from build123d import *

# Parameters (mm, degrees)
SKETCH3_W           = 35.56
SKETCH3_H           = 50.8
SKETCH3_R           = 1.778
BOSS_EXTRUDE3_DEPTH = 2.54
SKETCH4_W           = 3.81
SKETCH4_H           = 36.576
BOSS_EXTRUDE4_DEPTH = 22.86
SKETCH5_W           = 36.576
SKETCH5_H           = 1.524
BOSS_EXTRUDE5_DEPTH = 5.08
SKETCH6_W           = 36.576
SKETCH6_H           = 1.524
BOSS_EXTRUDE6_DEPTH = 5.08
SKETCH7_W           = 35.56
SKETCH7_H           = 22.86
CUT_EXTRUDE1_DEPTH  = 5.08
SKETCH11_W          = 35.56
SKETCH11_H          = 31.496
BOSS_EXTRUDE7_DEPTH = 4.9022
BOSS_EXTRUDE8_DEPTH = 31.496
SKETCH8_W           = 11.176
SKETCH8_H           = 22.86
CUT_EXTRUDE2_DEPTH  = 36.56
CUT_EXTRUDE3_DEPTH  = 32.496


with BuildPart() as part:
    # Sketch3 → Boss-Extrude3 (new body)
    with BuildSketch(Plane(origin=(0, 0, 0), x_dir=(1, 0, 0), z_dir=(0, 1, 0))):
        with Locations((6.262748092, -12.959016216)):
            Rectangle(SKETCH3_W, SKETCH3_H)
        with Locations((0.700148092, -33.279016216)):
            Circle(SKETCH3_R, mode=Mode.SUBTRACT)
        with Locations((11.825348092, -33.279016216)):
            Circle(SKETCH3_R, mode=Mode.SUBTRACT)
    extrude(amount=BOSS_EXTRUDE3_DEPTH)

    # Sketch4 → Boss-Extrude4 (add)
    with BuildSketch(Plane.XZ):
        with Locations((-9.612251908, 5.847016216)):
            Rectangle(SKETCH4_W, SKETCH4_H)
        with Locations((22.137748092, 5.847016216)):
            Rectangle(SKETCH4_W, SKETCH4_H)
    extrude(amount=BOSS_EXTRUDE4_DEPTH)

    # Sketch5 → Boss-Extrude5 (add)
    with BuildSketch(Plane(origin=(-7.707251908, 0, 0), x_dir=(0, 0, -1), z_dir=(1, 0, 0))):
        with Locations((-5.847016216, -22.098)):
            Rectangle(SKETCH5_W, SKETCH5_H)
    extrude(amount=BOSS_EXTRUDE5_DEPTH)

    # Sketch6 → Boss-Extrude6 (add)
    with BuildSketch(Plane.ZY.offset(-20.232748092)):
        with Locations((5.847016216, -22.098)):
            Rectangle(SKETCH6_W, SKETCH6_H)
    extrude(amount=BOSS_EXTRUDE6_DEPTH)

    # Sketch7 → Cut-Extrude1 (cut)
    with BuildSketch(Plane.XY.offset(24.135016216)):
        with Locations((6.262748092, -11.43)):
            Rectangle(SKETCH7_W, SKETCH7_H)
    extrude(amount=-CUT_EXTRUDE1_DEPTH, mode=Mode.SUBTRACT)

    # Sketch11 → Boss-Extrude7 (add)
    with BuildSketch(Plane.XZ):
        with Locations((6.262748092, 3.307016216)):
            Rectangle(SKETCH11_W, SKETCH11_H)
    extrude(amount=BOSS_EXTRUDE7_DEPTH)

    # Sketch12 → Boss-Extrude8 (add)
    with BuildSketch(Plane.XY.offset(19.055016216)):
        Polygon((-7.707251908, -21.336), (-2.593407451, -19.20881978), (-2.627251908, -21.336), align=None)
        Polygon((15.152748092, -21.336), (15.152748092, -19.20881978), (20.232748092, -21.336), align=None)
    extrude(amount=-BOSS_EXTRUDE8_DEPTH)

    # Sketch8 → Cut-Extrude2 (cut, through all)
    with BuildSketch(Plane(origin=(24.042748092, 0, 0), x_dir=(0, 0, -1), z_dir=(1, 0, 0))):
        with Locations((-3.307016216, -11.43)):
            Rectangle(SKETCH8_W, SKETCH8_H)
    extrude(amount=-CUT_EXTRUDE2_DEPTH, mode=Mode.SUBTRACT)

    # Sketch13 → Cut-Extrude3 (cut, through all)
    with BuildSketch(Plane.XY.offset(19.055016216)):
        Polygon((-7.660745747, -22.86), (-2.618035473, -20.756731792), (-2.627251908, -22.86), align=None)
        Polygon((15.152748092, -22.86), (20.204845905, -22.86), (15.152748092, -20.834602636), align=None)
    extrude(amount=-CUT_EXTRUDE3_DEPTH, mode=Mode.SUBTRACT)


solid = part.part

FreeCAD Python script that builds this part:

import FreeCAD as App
import Part
import Sketcher

V = App.Vector
Q = App.Units.Quantity

doc = App.newDocument("Part")
params = doc.addObject("Spreadsheet::Sheet", "Params")
for row, (alias, value) in enumerate([
    ("sketch1_diameter", "0.14 in"),
    ("sketch1_height", "2 in"),
    ("sketch1_width", "1.4 in"),
    ("pad1_length", "0.1 in"),
    ("sketch2_width", "0.15 in"),
    ("sketch2_height", "1.44 in"),
    ("pad2_length", "0.9 in"),
    ("sketch3_width", "0.06 in"),
    ("sketch3_height", "1.44 in"),
    ("pad3_length", "0.2 in"),
    ("sketch4_width", "0.06 in"),
    ("sketch4_height", "1.44 in"),
    ("pad4_length", "0.2 in"),
    ("sketch5_width", "1.4 in"),
    ("sketch5_height", "0.9 in"),
    ("pocket1_length", "0.2 in"),
    ("sketch6_width", "1.4 in"),
    ("sketch6_height", "1.24 in"),
    ("pad5_length", "0.193 in"),
    ("sketch7_width", "0.2 in"),
    ("pad6_length", "1.24 in"),
    ("sketch8_width", "0.9 in"),
    ("sketch8_height", "0.44 in"),
], start=1):
    params.set(f"A{row}", alias)
    params.set(f"B{row}", "=" + value)
    params.setAlias(f"B{row}", alias)

body = doc.addObject("PartDesign::Body", "Body")

# Sketch on XZ plane
sketch1 = body.newObject("Sketcher::SketchObject", "Sketch")
sketch1.AttachmentSupport = (doc.getObject("XZ_Plane"), [""])
sketch1.MapMode = "FlatFace"
sketch1.addGeometry(Part.LineSegment(V(-11.517252, -12.440984, 0), V(-11.517252, 38.359016, 0)), False)
sketch1.addGeometry(Part.LineSegment(V(-11.517252, 38.359016, 0), V(24.042748, 38.359016, 0)), False)
sketch1.addGeometry(Part.LineSegment(V(24.042748, 38.359016, 0), V(24.042748, -12.440984, 0)), False)
sketch1.addGeometry(Part.LineSegment(V(24.042748, -12.440984, 0), V(-11.517252, -12.440984, 0)), False)
sketch1.addGeometry(Part.Circle(V(0.700148, 33.279016, 0), V(0, 0, 1), 1.778), False)
sketch1.addGeometry(Part.Circle(V(11.825348, 33.279016, 0), V(0, 0, 1), 1.778), False)
sketch1.addConstraint(Sketcher.Constraint("Coincident", 0, 2, 1, 1))
sketch1.addConstraint(Sketcher.Constraint("Coincident", 1, 2, 2, 1))
sketch1.addConstraint(Sketcher.Constraint("Coincident", 2, 2, 3, 1))
sketch1.addConstraint(Sketcher.Constraint("Coincident", 3, 2, 0, 1))
sketch1.addConstraint(Sketcher.Constraint("Vertical", 0))
sketch1.addConstraint(Sketcher.Constraint("Horizontal", 1))
sketch1.addConstraint(Sketcher.Constraint("Vertical", 2))
sketch1.addConstraint(Sketcher.Constraint("Horizontal", 3))
sketch1.addConstraint(Sketcher.Constraint("Equal", 4, 5))
sketch1.addConstraint(Sketcher.Constraint("Horizontal", 4, 3, 5, 3))
sketch1.addConstraint(Sketcher.Constraint("Diameter", 4, Q("0.14 in")))
sketch1.addConstraint(Sketcher.Constraint("DistanceY", 0, 1, 0, 2, Q("2 in")))
sketch1.addConstraint(Sketcher.Constraint("DistanceX", 1, 1, 1, 2, Q("1.4 in")))
sketch1.addConstraint(Sketcher.Constraint("DistanceY", 4, 3, 0, 2, Q("0.2 in")))
sketch1.addConstraint(Sketcher.Constraint("DistanceX", 4, 3, 5, 3, Q("0.438 in")))
sketch1.addConstraint(Sketcher.Constraint("DistanceX", 0, 2, 4, 3, Q("0.481 in")))
sketch1.addConstraint(Sketcher.Constraint("DistanceX", -1, 1, 4, 3, Q("0.700148 mm")))
sketch1.addConstraint(Sketcher.Constraint("DistanceY", -1, 1, 4, 3, Q("33.279016 mm")))
sketch1.setExpression("Constraints[10]", "Params.sketch1_diameter")
sketch1.setExpression("Constraints[11]", "Params.sketch1_height")
sketch1.setExpression("Constraints[12]", "Params.sketch1_width")
pad1 = body.newObject("PartDesign::Pad", "Pad")
pad1.Profile = sketch1
pad1.setExpression("Length", "Params.pad1_length")
pad1.Reversed = True

# Sketch on XZ plane
sketch2 = body.newObject("Sketcher::SketchObject", "Sketch001")
sketch2.AttachmentSupport = (doc.getObject("XZ_Plane"), [""])
sketch2.MapMode = "FlatFace"
sketch2.addGeometry(Part.LineSegment(V(-11.517252, 24.135016, 0), V(-11.517252, -12.440984, 0)), False)
sketch2.addGeometry(Part.LineSegment(V(-11.517252, -12.440984, 0), V(-7.707252, -12.440984, 0)), False)
sketch2.addGeometry(Part.LineSegment(V(-7.707252, -12.440984, 0), V(-7.707252, 24.135016, 0)), False)
sketch2.addGeometry(Part.LineSegment(V(-7.707252, 24.135016, 0), V(-11.517252, 24.135016, 0)), False)
sketch2.addGeometry(Part.LineSegment(V(20.232748, 24.135016, 0), V(20.232748, -12.440984, 0)), False)
sketch2.addGeometry(Part.LineSegment(V(20.232748, -12.440984, 0), V(24.042748, -12.440984, 0)), False)
sketch2.addGeometry(Part.LineSegment(V(24.042748, -12.440984, 0), V(24.042748, 24.135016, 0)), False)
sketch2.addGeometry(Part.LineSegment(V(24.042748, 24.135016, 0), V(20.232748, 24.135016, 0)), False)
sketch2.addConstraint(Sketcher.Constraint("Coincident", 0, 2, 1, 1))
sketch2.addConstraint(Sketcher.Constraint("Coincident", 1, 2, 2, 1))
sketch2.addConstraint(Sketcher.Constraint("Coincident", 2, 2, 3, 1))
sketch2.addConstraint(Sketcher.Constraint("Coincident", 3, 2, 0, 1))
sketch2.addConstraint(Sketcher.Constraint("Coincident", 4, 2, 5, 1))
sketch2.addConstraint(Sketcher.Constraint("Coincident", 5, 2, 6, 1))
sketch2.addConstraint(Sketcher.Constraint("Coincident", 6, 2, 7, 1))
sketch2.addConstraint(Sketcher.Constraint("Coincident", 7, 2, 4, 1))
sketch2.addConstraint(Sketcher.Constraint("Vertical", 0))
sketch2.addConstraint(Sketcher.Constraint("Horizontal", 1))
sketch2.addConstraint(Sketcher.Constraint("Vertical", 2))
sketch2.addConstraint(Sketcher.Constraint("Horizontal", 3))
sketch2.addConstraint(Sketcher.Constraint("Vertical", 4))
sketch2.addConstraint(Sketcher.Constraint("Horizontal", 5))
sketch2.addConstraint(Sketcher.Constraint("Vertical", 6))
sketch2.addConstraint(Sketcher.Constraint("Horizontal", 7))
sketch2.addConstraint(Sketcher.Constraint("Horizontal", 1, 2, 4, 2))
sketch2.addConstraint(Sketcher.Constraint("Horizontal", 3, 2, 6, 2))
sketch2.addConstraint(Sketcher.Constraint("Equal", 3, 5))
sketch2.addConstraint(Sketcher.Constraint("DistanceX", 1, 1, 1, 2, Q("0.15 in")))
sketch2.addConstraint(Sketcher.Constraint("DistanceY", 0, 2, 0, 1, Q("1.44 in")))
sketch2.addConstraint(Sketcher.Constraint("DistanceX", 1, 2, 4, 2, Q("1.1 in")))
sketch2.addConstraint(Sketcher.Constraint("DistanceX", 0, 2, -1, 1, Q("11.517252 mm")))
sketch2.addConstraint(Sketcher.Constraint("DistanceY", 0, 2, -1, 1, Q("12.440984 mm")))
sketch2.setExpression("Constraints[19]", "Params.sketch2_width")
sketch2.setExpression("Constraints[20]", "Params.sketch2_height")
pad2 = body.newObject("PartDesign::Pad", "Pad001")
pad2.Profile = sketch2
pad2.setExpression("Length", "Params.pad2_length")

# Sketch on YZ plane
sketch3 = body.newObject("Sketcher::SketchObject", "Sketch002")
sketch3.AttachmentSupport = (doc.getObject("YZ_Plane"), [""])
sketch3.MapMode = "FlatFace"
sketch3.AttachmentOffset = App.Placement(V(0, 0, -7.707252), App.Rotation())
sketch3.addGeometry(Part.LineSegment(V(-21.336, 24.135016, 0), V(-22.86, 24.135016, 0)), False)
sketch3.addGeometry(Part.LineSegment(V(-22.86, 24.135016, 0), V(-22.86, -12.440984, 0)), False)
sketch3.addGeometry(Part.LineSegment(V(-22.86, -12.440984, 0), V(-21.336, -12.440984, 0)), False)
sketch3.addGeometry(Part.LineSegment(V(-21.336, -12.440984, 0), V(-21.336, 24.135016, 0)), False)
sketch3.addConstraint(Sketcher.Constraint("Coincident", 0, 2, 1, 1))
sketch3.addConstraint(Sketcher.Constraint("Coincident", 1, 2, 2, 1))
sketch3.addConstraint(Sketcher.Constraint("Coincident", 2, 2, 3, 1))
sketch3.addConstraint(Sketcher.Constraint("Coincident", 3, 2, 0, 1))
sketch3.addConstraint(Sketcher.Constraint("Horizontal", 0))
sketch3.addConstraint(Sketcher.Constraint("Vertical", 1))
sketch3.addConstraint(Sketcher.Constraint("Horizontal", 2))
sketch3.addConstraint(Sketcher.Constraint("Vertical", 3))
sketch3.addConstraint(Sketcher.Constraint("DistanceX", 0, 2, 0, 1, Q("0.06 in")))
sketch3.addConstraint(Sketcher.Constraint("DistanceY", 1, 2, 1, 1, Q("1.44 in")))
sketch3.addConstraint(Sketcher.Constraint("DistanceX", 0, 2, -1, 1, Q("0.9 in")))
sketch3.addConstraint(Sketcher.Constraint("DistanceY", -1, 1, 0, 2, Q("24.135016 mm")))
sketch3.setExpression("Constraints[8]", "Params.sketch3_width")
sketch3.setExpression("Constraints[9]", "Params.sketch3_height")
pad3 = body.newObject("PartDesign::Pad", "Pad002")
pad3.Profile = sketch3
pad3.setExpression("Length", "Params.pad3_length")

# Sketch on YZ plane
sketch4 = body.newObject("Sketcher::SketchObject", "Sketch003")
sketch4.AttachmentSupport = (doc.getObject("YZ_Plane"), [""])
sketch4.MapMode = "FlatFace"
sketch4.AttachmentOffset = App.Placement(V(0, 0, 20.232748), App.Rotation())
sketch4.addGeometry(Part.LineSegment(V(-21.336, -12.440984, 0), V(-22.86, -12.440984, 0)), False)
sketch4.addGeometry(Part.LineSegment(V(-22.86, -12.440984, 0), V(-22.86, 24.135016, 0)), False)
sketch4.addGeometry(Part.LineSegment(V(-22.86, 24.135016, 0), V(-21.336, 24.135016, 0)), False)
sketch4.addGeometry(Part.LineSegment(V(-21.336, 24.135016, 0), V(-21.336, -12.440984, 0)), False)
sketch4.addConstraint(Sketcher.Constraint("Coincident", 0, 2, 1, 1))
sketch4.addConstraint(Sketcher.Constraint("Coincident", 1, 2, 2, 1))
sketch4.addConstraint(Sketcher.Constraint("Coincident", 2, 2, 3, 1))
sketch4.addConstraint(Sketcher.Constraint("Coincident", 3, 2, 0, 1))
sketch4.addConstraint(Sketcher.Constraint("Horizontal", 0))
sketch4.addConstraint(Sketcher.Constraint("Vertical", 1))
sketch4.addConstraint(Sketcher.Constraint("Horizontal", 2))
sketch4.addConstraint(Sketcher.Constraint("Vertical", 3))
sketch4.addConstraint(Sketcher.Constraint("DistanceX", 0, 2, 0, 1, Q("0.06 in")))
sketch4.addConstraint(Sketcher.Constraint("DistanceY", 1, 1, 1, 2, Q("1.44 in")))
sketch4.addConstraint(Sketcher.Constraint("DistanceX", 0, 2, -1, 1, Q("0.9 in")))
sketch4.addConstraint(Sketcher.Constraint("DistanceY", 0, 2, -1, 1, Q("12.440984 mm")))
sketch4.setExpression("Constraints[8]", "Params.sketch4_width")
sketch4.setExpression("Constraints[9]", "Params.sketch4_height")
pad4 = body.newObject("PartDesign::Pad", "Pad003")
pad4.Profile = sketch4
pad4.setExpression("Length", "Params.pad4_length")
pad4.Reversed = True

# Sketch on XY plane
sketch5 = body.newObject("Sketcher::SketchObject", "Sketch004")
sketch5.AttachmentSupport = (doc.getObject("XY_Plane"), [""])
sketch5.MapMode = "FlatFace"
sketch5.AttachmentOffset = App.Placement(V(0, 0, 24.135016), App.Rotation())
sketch5.addGeometry(Part.LineSegment(V(-11.517252, 0, 0), V(-11.517252, -22.86, 0)), False)
sketch5.addGeometry(Part.LineSegment(V(-11.517252, -22.86, 0), V(24.042748, -22.86, 0)), False)
sketch5.addGeometry(Part.LineSegment(V(24.042748, -22.86, 0), V(24.042748, 0, 0)), False)
sketch5.addGeometry(Part.LineSegment(V(24.042748, 0, 0), V(-11.517252, 0, 0)), False)
sketch5.addConstraint(Sketcher.Constraint("Coincident", 0, 2, 1, 1))
sketch5.addConstraint(Sketcher.Constraint("Coincident", 1, 2, 2, 1))
sketch5.addConstraint(Sketcher.Constraint("Coincident", 2, 2, 3, 1))
sketch5.addConstraint(Sketcher.Constraint("Coincident", 3, 2, 0, 1))
sketch5.addConstraint(Sketcher.Constraint("Vertical", 0))
sketch5.addConstraint(Sketcher.Constraint("Horizontal", 1))
sketch5.addConstraint(Sketcher.Constraint("Vertical", 2))
sketch5.addConstraint(Sketcher.Constraint("Horizontal", 3))
sketch5.addConstraint(Sketcher.Constraint("PointOnObject", 2, 2, -1))
sketch5.addConstraint(Sketcher.Constraint("DistanceX", 1, 1, 1, 2, Q("1.4 in")))
sketch5.addConstraint(Sketcher.Constraint("DistanceY", 0, 2, 0, 1, Q("0.9 in")))
sketch5.addConstraint(Sketcher.Constraint("DistanceX", 0, 2, -1, 1, Q("11.517252 mm")))
sketch5.setExpression("Constraints[9]", "Params.sketch5_width")
sketch5.setExpression("Constraints[10]", "Params.sketch5_height")
pocket1 = body.newObject("PartDesign::Pocket", "Pocket")
pocket1.Profile = sketch5
pocket1.setExpression("Length", "Params.pocket1_length")

# Sketch on XZ plane
sketch6 = body.newObject("Sketcher::SketchObject", "Sketch005")
sketch6.AttachmentSupport = (doc.getObject("XZ_Plane"), [""])
sketch6.MapMode = "FlatFace"
sketch6.addGeometry(Part.LineSegment(V(-11.517252, 19.055016, 0), V(-11.517252, -12.440984, 0)), False)
sketch6.addGeometry(Part.LineSegment(V(-11.517252, -12.440984, 0), V(24.042748, -12.440984, 0)), False)
sketch6.addGeometry(Part.LineSegment(V(24.042748, -12.440984, 0), V(24.042748, 19.055016, 0)), False)
sketch6.addGeometry(Part.LineSegment(V(24.042748, 19.055016, 0), V(-11.517252, 19.055016, 0)), False)
sketch6.addConstraint(Sketcher.Constraint("Coincident", 0, 2, 1, 1))
sketch6.addConstraint(Sketcher.Constraint("Coincident", 1, 2, 2, 1))
sketch6.addConstraint(Sketcher.Constraint("Coincident", 2, 2, 3, 1))
sketch6.addConstraint(Sketcher.Constraint("Coincident", 3, 2, 0, 1))
sketch6.addConstraint(Sketcher.Constraint("Vertical", 0))
sketch6.addConstraint(Sketcher.Constraint("Horizontal", 1))
sketch6.addConstraint(Sketcher.Constraint("Vertical", 2))
sketch6.addConstraint(Sketcher.Constraint("Horizontal", 3))
sketch6.addConstraint(Sketcher.Constraint("DistanceX", 1, 1, 1, 2, Q("1.4 in")))
sketch6.addConstraint(Sketcher.Constraint("DistanceY", 0, 2, 0, 1, Q("1.24 in")))
sketch6.addConstraint(Sketcher.Constraint("DistanceX", 0, 2, -1, 1, Q("11.517252 mm")))
sketch6.addConstraint(Sketcher.Constraint("DistanceY", 0, 2, -1, 1, Q("12.440984 mm")))
sketch6.setExpression("Constraints[8]", "Params.sketch6_width")
sketch6.setExpression("Constraints[9]", "Params.sketch6_height")
pad5 = body.newObject("PartDesign::Pad", "Pad004")
pad5.Profile = sketch6
pad5.setExpression("Length", "Params.pad5_length")

# Sketch on XY plane
sketch7 = body.newObject("Sketcher::SketchObject", "Sketch006")
sketch7.AttachmentSupport = (doc.getObject("XY_Plane"), [""])
sketch7.MapMode = "FlatFace"
sketch7.AttachmentOffset = App.Placement(V(0, 0, 19.055016), App.Rotation())
sketch7.addGeometry(Part.LineSegment(V(-2.593407, -19.20882, 0), V(-7.707252, -21.336, 0)), False)
sketch7.addGeometry(Part.LineSegment(V(-7.707252, -21.336, 0), V(-2.627252, -21.336, 0)), False)
sketch7.addGeometry(Part.LineSegment(V(-2.627252, -21.336, 0), V(-2.593407, -19.20882, 0)), False)
sketch7.addGeometry(Part.LineSegment(V(15.152748, -19.20882, 0), V(15.152748, -21.336, 0)), False)
sketch7.addGeometry(Part.LineSegment(V(15.152748, -21.336, 0), V(20.232748, -21.336, 0)), False)
sketch7.addGeometry(Part.LineSegment(V(20.232748, -21.336, 0), V(15.152748, -19.20882, 0)), False)
sketch7.addConstraint(Sketcher.Constraint("Coincident", 0, 2, 1, 1))
sketch7.addConstraint(Sketcher.Constraint("Coincident", 1, 2, 2, 1))
sketch7.addConstraint(Sketcher.Constraint("Coincident", 2, 2, 0, 1))
sketch7.addConstraint(Sketcher.Constraint("Coincident", 3, 2, 4, 1))
sketch7.addConstraint(Sketcher.Constraint("Coincident", 4, 2, 5, 1))
sketch7.addConstraint(Sketcher.Constraint("Coincident", 5, 2, 3, 1))
sketch7.addConstraint(Sketcher.Constraint("Horizontal", 1))
sketch7.addConstraint(Sketcher.Constraint("Vertical", 3))
sketch7.addConstraint(Sketcher.Constraint("Horizontal", 4))
sketch7.addConstraint(Sketcher.Constraint("Horizontal", 1, 2, 3, 2))
sketch7.addConstraint(Sketcher.Constraint("Horizontal", 2, 2, 5, 2))
sketch7.addConstraint(Sketcher.Constraint("Equal", 1, 4))
sketch7.addConstraint(Sketcher.Constraint("DistanceX", 1, 1, 1, 2, Q("0.2 in")))
sketch7.addConstraint(Sketcher.Constraint("DistanceX", 1, 2, 3, 2, Q("0.7 in")))
sketch7.addConstraint(Sketcher.Constraint("DistanceY", 0, 2, -1, 1, Q("0.84 in")))
sketch7.addConstraint(Sketcher.Constraint("DistanceY", 3, 2, 3, 1, Q("2.12718 mm")))
sketch7.addConstraint(Sketcher.Constraint("Distance", 0, Q("5.538619 mm")))
sketch7.addConstraint(Sketcher.Constraint("DistanceX", 0, 2, -1, 1, Q("7.707252 mm")))
sketch7.setExpression("Constraints[12]", "Params.sketch7_width")
pad6 = body.newObject("PartDesign::Pad", "Pad005")
pad6.Profile = sketch7
pad6.setExpression("Length", "Params.pad6_length")
pad6.Reversed = True

# Sketch on YZ plane
sketch8 = body.newObject("Sketcher::SketchObject", "Sketch007")
sketch8.AttachmentSupport = (doc.getObject("YZ_Plane"), [""])
sketch8.MapMode = "FlatFace"
sketch8.AttachmentOffset = App.Placement(V(0, 0, 24.042748), App.Rotation())
sketch8.addGeometry(Part.LineSegment(V(0, 8.895016, 0), V(-22.86, 8.895016, 0)), False)
sketch8.addGeometry(Part.LineSegment(V(-22.86, 8.895016, 0), V(-22.86, -2.280984, 0)), False)
sketch8.addGeometry(Part.LineSegment(V(-22.86, -2.280984, 0), V(0, -2.280984, 0)), False)
sketch8.addGeometry(Part.LineSegment(V(0, -2.280984, 0), V(0, 8.895016, 0)), False)
sketch8.addConstraint(Sketcher.Constraint("Coincident", 0, 2, 1, 1))
sketch8.addConstraint(Sketcher.Constraint("Coincident", 1, 2, 2, 1))
sketch8.addConstraint(Sketcher.Constraint("Coincident", 2, 2, 3, 1))
sketch8.addConstraint(Sketcher.Constraint("Coincident", 3, 2, 0, 1))
sketch8.addConstraint(Sketcher.Constraint("Horizontal", 0))
sketch8.addConstraint(Sketcher.Constraint("Vertical", 1))
sketch8.addConstraint(Sketcher.Constraint("Horizontal", 2))
sketch8.addConstraint(Sketcher.Constraint("Vertical", 3))
sketch8.addConstraint(Sketcher.Constraint("PointOnObject", 2, 2, -2))
sketch8.addConstraint(Sketcher.Constraint("DistanceX", 0, 2, 0, 1, Q("0.9 in")))
sketch8.addConstraint(Sketcher.Constraint("DistanceY", 1, 2, 1, 1, Q("0.44 in")))
sketch8.addConstraint(Sketcher.Constraint("DistanceY", -1, 1, 0, 2, Q("8.895016 mm")))
sketch8.setExpression("Constraints[9]", "Params.sketch8_width")
sketch8.setExpression("Constraints[10]", "Params.sketch8_height")
pocket2 = body.newObject("PartDesign::Pocket", "Pocket001")
pocket2.Profile = sketch8
pocket2.Type = "ThroughAll"

# Sketch on XY plane
sketch9 = body.newObject("Sketcher::SketchObject", "Sketch008")
sketch9.AttachmentSupport = (doc.getObject("XY_Plane"), [""])
sketch9.MapMode = "FlatFace"
sketch9.AttachmentOffset = App.Placement(V(0, 0, 19.055016), App.Rotation())
sketch9.addGeometry(Part.LineSegment(V(-2.618035, -20.756732, 0), V(-7.660746, -22.86, 0)), False)
sketch9.addGeometry(Part.LineSegment(V(-7.660746, -22.86, 0), V(-2.627252, -22.86, 0)), False)
sketch9.addGeometry(Part.LineSegment(V(-2.627252, -22.86, 0), V(-2.618035, -20.756732, 0)), False)
sketch9.addGeometry(Part.LineSegment(V(15.152748, -22.86, 0), V(20.204846, -22.86, 0)), False)
sketch9.addGeometry(Part.LineSegment(V(20.204846, -22.86, 0), V(15.152748, -20.834603, 0)), False)
sketch9.addGeometry(Part.LineSegment(V(15.152748, -20.834603, 0), V(15.152748, -22.86, 0)), False)
sketch9.addConstraint(Sketcher.Constraint("Coincident", 0, 2, 1, 1))
sketch9.addConstraint(Sketcher.Constraint("Coincident", 1, 2, 2, 1))
sketch9.addConstraint(Sketcher.Constraint("Coincident", 2, 2, 0, 1))
sketch9.addConstraint(Sketcher.Constraint("Coincident", 3, 2, 4, 1))
sketch9.addConstraint(Sketcher.Constraint("Coincident", 4, 2, 5, 1))
sketch9.addConstraint(Sketcher.Constraint("Coincident", 5, 2, 3, 1))
sketch9.addConstraint(Sketcher.Constraint("Horizontal", 1))
sketch9.addConstraint(Sketcher.Constraint("Horizontal", 3))
sketch9.addConstraint(Sketcher.Constraint("Vertical", 5))
sketch9.addConstraint(Sketcher.Constraint("Horizontal", 1, 2, 3, 2))
sketch9.addConstraint(Sketcher.Constraint("DistanceY", 0, 2, -1, 1, Q("0.9 in")))
sketch9.addConstraint(Sketcher.Constraint("DistanceX", 1, 2, 4, 2, Q("0.7 in")))
sketch9.addConstraint(Sketcher.Constraint("Distance", 0, Q("5.463759 mm")))
sketch9.addConstraint(Sketcher.Constraint("Distance", 2, Q("2.103288 mm")))
sketch9.addConstraint(Sketcher.Constraint("Distance", 4, Q("5.44297 mm")))
sketch9.addConstraint(Sketcher.Constraint("DistanceX", 1, 1, 1, 2, Q("5.033494 mm")))
sketch9.addConstraint(Sketcher.Constraint("DistanceX", 3, 1, 3, 2, Q("5.052098 mm")))
sketch9.addConstraint(Sketcher.Constraint("DistanceX", 1, 2, -1, 1, Q("2.627252 mm")))
pocket3 = body.newObject("PartDesign::Pocket", "Pocket002")
pocket3.Profile = sketch9
pocket3.Type = "ThroughAll"

doc.recompute()
